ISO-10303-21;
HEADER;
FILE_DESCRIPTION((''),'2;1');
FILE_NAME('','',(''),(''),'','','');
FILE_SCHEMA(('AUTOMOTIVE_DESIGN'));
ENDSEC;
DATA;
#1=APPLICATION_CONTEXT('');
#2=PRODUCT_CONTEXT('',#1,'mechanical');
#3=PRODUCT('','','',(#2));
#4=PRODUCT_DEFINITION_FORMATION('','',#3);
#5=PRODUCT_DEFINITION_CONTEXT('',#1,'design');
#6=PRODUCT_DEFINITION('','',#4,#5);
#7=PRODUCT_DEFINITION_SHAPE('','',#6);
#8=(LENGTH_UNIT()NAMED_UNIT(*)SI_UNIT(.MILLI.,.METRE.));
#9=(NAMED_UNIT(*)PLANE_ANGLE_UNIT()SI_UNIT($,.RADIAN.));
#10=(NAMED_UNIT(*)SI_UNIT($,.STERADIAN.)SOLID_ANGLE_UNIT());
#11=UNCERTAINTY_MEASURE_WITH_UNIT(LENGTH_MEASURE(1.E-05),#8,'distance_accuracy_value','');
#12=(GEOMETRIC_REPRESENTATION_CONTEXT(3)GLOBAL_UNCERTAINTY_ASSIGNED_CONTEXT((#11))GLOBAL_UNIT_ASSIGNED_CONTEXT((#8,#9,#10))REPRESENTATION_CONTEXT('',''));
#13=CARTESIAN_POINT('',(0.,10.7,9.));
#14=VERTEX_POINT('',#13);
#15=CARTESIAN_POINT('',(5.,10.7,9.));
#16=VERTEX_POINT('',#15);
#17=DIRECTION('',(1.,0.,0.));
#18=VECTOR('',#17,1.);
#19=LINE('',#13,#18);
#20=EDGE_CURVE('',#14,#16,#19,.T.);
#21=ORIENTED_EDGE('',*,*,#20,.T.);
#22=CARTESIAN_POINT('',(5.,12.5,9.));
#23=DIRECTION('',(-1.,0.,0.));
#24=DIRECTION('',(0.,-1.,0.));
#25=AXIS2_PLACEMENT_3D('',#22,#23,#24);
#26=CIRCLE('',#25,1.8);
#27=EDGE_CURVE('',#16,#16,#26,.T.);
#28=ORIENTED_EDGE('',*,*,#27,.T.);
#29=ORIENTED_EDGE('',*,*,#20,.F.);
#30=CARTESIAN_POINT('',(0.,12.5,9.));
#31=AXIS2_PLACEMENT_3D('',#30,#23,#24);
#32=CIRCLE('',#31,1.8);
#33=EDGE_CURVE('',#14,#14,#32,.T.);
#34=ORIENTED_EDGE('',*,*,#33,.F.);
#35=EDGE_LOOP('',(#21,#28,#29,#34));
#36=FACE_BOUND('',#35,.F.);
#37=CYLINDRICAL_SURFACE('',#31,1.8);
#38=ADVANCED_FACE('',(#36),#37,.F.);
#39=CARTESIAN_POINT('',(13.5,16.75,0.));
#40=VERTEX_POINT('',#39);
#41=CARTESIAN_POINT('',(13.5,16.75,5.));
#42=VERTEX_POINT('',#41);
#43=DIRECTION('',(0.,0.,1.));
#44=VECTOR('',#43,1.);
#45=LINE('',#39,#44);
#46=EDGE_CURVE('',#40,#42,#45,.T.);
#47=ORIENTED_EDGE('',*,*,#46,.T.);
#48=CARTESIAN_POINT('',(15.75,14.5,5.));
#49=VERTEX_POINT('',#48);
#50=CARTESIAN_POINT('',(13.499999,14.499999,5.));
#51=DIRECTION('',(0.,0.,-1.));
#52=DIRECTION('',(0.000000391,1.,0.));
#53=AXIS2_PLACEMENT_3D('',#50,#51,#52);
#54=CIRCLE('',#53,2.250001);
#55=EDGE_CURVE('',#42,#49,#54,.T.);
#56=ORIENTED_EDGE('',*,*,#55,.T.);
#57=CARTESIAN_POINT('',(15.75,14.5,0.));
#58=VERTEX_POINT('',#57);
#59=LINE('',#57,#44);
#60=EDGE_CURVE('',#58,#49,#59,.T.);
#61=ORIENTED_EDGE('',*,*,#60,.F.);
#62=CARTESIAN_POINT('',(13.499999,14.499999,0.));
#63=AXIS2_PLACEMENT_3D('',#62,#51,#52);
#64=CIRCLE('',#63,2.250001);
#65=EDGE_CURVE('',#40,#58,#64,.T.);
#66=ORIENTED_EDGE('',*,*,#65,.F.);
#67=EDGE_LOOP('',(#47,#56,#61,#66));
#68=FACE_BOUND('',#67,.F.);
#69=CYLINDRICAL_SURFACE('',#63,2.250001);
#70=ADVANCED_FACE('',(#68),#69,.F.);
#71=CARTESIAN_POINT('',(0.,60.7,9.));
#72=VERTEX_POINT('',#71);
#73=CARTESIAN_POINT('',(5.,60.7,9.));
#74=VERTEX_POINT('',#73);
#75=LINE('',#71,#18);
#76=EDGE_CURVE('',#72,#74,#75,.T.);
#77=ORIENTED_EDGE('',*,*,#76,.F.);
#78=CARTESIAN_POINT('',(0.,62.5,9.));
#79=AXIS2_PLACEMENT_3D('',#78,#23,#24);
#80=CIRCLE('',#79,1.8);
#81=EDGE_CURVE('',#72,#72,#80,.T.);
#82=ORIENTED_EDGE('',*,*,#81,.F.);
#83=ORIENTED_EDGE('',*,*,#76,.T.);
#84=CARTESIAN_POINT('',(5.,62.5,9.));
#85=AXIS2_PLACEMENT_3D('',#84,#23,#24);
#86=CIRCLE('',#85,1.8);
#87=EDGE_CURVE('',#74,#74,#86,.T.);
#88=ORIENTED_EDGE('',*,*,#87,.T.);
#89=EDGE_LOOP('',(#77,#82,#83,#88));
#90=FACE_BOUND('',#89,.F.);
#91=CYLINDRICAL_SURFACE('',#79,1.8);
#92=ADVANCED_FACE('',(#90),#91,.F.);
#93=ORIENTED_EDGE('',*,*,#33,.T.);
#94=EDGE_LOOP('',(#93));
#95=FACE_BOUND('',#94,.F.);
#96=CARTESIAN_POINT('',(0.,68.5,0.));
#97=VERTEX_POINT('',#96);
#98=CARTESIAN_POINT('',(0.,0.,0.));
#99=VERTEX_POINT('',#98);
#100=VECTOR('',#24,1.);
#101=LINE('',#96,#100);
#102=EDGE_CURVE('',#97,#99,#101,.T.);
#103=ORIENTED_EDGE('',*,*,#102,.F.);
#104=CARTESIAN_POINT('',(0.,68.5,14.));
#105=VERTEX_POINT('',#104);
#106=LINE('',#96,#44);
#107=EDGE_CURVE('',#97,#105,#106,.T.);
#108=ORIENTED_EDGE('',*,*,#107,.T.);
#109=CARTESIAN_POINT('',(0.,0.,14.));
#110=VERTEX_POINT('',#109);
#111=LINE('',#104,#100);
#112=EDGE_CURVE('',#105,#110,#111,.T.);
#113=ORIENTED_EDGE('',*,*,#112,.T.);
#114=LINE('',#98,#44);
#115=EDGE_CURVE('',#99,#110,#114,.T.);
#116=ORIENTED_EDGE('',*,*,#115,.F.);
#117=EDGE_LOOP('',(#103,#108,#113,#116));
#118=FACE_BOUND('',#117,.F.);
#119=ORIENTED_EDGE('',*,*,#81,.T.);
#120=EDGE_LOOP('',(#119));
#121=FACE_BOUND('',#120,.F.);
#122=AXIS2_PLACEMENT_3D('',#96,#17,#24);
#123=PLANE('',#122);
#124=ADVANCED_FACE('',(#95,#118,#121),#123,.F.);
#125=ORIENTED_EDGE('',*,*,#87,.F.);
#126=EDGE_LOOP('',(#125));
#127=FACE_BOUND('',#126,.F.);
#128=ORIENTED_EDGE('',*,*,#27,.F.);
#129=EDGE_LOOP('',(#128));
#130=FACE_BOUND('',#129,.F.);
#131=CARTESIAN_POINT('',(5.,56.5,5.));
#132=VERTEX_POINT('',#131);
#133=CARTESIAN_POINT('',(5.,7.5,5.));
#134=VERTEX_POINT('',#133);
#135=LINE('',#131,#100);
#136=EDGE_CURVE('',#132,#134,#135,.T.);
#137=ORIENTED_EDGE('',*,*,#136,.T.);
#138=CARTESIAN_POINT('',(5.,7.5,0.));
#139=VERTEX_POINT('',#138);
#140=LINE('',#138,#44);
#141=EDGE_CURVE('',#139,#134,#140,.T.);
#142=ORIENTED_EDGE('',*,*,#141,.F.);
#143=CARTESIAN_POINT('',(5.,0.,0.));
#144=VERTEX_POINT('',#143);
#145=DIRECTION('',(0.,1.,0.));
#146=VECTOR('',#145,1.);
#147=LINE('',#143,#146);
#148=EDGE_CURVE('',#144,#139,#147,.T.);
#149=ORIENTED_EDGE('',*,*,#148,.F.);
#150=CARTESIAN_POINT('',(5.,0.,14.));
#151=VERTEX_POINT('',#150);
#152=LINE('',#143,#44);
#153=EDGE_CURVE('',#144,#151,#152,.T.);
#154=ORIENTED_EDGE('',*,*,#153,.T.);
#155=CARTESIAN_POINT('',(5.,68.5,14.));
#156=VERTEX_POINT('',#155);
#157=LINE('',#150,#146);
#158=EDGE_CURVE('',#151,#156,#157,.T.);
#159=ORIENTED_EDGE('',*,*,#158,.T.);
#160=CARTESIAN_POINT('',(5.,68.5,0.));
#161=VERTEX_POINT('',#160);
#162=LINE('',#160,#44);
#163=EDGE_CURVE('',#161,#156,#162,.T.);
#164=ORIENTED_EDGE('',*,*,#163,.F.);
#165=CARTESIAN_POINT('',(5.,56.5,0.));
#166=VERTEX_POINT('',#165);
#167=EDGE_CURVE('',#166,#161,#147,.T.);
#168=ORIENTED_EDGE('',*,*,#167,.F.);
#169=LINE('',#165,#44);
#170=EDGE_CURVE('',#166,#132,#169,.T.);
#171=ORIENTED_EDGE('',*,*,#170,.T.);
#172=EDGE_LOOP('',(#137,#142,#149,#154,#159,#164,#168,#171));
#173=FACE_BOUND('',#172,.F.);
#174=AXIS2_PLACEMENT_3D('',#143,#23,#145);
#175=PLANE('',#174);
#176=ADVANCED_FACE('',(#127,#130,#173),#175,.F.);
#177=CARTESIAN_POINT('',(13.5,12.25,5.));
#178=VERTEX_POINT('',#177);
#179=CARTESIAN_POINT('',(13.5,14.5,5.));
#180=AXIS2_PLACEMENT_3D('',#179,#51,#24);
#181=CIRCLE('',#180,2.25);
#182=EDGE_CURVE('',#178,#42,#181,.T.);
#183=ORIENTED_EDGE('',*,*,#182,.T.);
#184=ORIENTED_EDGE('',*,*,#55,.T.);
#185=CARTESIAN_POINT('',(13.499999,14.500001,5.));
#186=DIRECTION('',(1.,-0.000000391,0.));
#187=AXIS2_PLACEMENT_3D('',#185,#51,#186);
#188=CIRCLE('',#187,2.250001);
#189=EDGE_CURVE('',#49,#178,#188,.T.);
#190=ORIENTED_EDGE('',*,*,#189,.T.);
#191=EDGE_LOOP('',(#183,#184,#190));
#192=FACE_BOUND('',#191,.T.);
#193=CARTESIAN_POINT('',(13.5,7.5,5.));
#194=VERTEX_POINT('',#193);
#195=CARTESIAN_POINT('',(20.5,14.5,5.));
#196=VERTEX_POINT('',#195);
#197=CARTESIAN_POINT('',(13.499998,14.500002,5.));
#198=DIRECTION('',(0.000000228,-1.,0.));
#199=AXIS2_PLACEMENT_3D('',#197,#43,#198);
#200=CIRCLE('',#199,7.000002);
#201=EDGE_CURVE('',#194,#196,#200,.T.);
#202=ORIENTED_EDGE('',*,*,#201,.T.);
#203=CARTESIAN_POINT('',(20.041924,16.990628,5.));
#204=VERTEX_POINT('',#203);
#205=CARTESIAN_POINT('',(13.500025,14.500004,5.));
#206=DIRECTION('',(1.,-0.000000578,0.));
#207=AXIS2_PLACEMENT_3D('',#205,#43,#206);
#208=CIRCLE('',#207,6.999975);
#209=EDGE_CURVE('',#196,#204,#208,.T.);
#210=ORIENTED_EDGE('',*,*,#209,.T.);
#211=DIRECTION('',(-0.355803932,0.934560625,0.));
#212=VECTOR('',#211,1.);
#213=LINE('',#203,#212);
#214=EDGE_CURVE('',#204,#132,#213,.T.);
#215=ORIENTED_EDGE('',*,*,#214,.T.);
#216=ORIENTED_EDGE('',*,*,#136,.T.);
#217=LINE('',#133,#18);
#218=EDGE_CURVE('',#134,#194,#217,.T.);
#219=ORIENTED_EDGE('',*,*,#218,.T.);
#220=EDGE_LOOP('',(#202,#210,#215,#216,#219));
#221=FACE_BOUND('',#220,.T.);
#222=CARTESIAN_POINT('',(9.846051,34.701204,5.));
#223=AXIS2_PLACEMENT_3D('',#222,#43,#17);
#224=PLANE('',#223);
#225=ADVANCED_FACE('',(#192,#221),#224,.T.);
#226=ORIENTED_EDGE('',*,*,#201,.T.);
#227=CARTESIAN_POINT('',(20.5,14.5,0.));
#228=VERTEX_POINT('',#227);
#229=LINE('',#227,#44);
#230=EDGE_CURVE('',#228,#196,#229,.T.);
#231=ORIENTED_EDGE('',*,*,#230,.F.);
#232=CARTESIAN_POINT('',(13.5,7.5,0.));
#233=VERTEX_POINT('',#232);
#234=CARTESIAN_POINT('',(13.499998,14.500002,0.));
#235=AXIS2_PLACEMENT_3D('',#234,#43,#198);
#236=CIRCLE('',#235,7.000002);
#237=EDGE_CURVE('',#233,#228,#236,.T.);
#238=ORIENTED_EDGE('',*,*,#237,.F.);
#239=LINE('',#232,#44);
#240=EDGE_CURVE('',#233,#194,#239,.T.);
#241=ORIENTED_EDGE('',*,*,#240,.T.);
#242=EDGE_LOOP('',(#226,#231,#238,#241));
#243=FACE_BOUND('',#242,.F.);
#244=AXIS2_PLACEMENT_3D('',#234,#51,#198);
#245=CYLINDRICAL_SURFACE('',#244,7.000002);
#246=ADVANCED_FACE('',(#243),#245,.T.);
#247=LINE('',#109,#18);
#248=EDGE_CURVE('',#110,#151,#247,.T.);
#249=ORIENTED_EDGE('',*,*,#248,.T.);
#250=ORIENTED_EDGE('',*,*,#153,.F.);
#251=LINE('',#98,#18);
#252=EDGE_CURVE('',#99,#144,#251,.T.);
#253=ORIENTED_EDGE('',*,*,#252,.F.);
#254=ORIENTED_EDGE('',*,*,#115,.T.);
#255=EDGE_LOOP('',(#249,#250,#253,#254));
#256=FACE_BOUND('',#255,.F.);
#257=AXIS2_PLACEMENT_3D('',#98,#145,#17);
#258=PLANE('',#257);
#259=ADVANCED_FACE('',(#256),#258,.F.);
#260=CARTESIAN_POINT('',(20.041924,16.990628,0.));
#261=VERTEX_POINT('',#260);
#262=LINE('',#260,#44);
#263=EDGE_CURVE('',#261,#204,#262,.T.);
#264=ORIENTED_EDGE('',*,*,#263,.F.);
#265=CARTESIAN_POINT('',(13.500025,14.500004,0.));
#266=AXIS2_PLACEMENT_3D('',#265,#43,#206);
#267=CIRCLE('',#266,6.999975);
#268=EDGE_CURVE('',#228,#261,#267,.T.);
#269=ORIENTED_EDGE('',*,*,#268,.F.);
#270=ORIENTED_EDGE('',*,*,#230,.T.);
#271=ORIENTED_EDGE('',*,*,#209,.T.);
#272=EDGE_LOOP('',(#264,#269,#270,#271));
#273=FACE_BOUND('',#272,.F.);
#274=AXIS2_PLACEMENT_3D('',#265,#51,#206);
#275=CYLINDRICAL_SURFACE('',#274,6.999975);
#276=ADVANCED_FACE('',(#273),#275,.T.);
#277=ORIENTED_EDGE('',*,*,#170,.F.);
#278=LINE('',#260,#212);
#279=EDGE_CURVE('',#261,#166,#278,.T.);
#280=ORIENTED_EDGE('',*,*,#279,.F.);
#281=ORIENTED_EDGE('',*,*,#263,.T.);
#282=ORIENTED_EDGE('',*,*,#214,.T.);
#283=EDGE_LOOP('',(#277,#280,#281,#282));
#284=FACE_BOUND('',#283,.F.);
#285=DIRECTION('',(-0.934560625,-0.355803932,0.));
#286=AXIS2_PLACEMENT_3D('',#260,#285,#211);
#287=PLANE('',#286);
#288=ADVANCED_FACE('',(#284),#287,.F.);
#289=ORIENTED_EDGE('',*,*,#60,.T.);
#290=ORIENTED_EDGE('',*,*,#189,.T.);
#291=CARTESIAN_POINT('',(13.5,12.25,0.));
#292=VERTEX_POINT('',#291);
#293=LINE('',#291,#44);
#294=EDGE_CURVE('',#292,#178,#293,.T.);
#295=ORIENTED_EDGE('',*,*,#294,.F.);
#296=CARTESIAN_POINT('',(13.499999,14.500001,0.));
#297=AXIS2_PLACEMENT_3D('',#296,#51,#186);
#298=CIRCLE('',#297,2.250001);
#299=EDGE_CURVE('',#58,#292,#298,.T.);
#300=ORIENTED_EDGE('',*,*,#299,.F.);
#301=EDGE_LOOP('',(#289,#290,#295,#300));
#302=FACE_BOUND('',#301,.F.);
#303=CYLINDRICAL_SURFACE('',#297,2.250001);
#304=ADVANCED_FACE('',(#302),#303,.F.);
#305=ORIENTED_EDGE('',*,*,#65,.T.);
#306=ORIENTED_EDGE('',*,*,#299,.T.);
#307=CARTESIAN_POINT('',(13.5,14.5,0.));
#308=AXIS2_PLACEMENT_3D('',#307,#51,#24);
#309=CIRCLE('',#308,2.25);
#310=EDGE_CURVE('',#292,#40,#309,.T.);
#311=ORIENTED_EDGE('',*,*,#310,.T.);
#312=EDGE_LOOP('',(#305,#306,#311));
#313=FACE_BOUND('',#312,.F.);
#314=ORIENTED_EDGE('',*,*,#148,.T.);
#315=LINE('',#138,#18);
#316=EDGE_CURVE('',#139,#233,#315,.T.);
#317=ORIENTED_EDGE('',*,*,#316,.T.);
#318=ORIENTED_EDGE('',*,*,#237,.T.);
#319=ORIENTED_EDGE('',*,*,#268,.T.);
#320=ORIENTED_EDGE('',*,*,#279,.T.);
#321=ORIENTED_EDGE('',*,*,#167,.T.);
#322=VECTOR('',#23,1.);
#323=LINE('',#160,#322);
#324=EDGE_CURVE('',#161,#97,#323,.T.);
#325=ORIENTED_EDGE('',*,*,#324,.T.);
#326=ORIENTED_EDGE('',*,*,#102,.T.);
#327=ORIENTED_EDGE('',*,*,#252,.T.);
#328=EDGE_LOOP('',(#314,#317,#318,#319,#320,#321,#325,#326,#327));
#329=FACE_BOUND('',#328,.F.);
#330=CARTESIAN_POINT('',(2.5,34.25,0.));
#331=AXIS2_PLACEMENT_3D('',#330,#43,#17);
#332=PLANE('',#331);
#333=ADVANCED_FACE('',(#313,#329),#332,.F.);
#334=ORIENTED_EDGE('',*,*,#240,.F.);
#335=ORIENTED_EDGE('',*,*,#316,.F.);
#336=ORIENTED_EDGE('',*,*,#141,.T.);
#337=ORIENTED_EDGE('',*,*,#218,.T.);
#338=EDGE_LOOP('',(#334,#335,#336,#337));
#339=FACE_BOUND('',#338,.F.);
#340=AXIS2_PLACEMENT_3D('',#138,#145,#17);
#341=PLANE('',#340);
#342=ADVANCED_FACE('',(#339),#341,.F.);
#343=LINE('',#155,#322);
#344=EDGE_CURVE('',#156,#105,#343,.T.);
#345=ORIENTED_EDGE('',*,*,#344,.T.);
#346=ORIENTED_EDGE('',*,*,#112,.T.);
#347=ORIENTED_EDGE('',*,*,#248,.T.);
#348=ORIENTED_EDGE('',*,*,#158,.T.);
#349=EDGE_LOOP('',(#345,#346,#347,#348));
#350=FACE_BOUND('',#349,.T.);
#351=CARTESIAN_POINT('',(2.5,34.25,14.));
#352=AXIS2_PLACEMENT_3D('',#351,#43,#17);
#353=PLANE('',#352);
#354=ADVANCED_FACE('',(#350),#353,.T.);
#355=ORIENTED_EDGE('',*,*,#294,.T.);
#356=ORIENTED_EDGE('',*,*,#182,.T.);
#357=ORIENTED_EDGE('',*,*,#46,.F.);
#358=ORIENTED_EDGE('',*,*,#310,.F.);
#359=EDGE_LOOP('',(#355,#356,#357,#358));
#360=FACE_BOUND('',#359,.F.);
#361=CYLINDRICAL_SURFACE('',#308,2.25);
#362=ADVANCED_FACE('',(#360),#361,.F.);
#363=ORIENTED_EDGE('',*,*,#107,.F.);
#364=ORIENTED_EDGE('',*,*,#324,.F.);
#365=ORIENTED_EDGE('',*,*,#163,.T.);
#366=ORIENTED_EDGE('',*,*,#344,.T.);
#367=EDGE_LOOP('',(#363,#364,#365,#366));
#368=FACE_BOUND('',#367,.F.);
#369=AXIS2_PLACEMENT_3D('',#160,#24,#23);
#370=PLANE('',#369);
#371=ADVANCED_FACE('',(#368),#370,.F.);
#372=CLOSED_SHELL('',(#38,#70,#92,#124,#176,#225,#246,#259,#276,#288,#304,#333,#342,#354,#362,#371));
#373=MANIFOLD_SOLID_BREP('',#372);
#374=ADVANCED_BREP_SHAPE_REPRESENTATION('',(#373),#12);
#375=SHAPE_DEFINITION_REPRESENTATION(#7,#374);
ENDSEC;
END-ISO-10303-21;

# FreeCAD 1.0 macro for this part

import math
import FreeCAD as App
import Part
import Sketcher
from FreeCAD import Vector
Q = App.Units.Quantity

doc = App.newDocument("Part")
body = doc.addObject("PartDesign::Body", "Body")

# Sketch on XY plane
sketch1 = body.newObject("Sketcher::SketchObject", "Sketch")
sketch1.AttachmentSupport = (doc.getObject("XY_Plane"), [""])
sketch1.MapMode = "FlatFace"
sketch1.addGeometry([
    Part.LineSegment(Vector(0, 68, 0), Vector(0, 0, 0)),
    Part.LineSegment(Vector(0, 0, 0), Vector(5, 0, 0)),
    Part.LineSegment(Vector(5, 0, 0), Vector(5, 68, 0)),
    Part.LineSegment(Vector(5, 68, 0), Vector(0, 68, 0)),
], False)
sketch1.addConstraint([
    Sketcher.Constraint("Coincident", 0, 2, 1, 1),
    Sketcher.Constraint("Coincident", 1, 2, 2, 1),
    Sketcher.Constraint("Coincident", 2, 2, 3, 1),
    Sketcher.Constraint("Coincident", 3, 2, 0, 1),
    Sketcher.Constraint("Vertical", 0),
    Sketcher.Constraint("Horizontal", 1),
    Sketcher.Constraint("Vertical", 2),
    Sketcher.Constraint("Horizontal", 3),
    Sketcher.Constraint("Coincident", 0, 2, -1, 1),
    Sketcher.Constraint("DistanceX", 1, 1, 1, 2, Q("5 mm")),
    Sketcher.Constraint("DistanceY", 0, 2, 0, 1, Q("68.5 mm")),
])
pad1 = body.newObject("PartDesign::Pad", "Pad")
pad1.Profile = sketch1
pad1.Length = 14

# Sketch on YZ plane
sketch2 = body.newObject("Sketcher::SketchObject", "Sketch001")
sketch2.AttachmentSupport = (doc.getObject("YZ_Plane"), [""])
sketch2.MapMode = "FlatFace"
sketch2.addGeometry([
    Part.Circle(Vector(62.5, 9, 0), Vector(0, 0, 1), 1.8),
    Part.Circle(Vector(12.5, 9, 0), Vector(0, 0, 1), 1.8),
], False)
sketch2.addConstraint([
    Sketcher.Constraint("Equal", 0, 1),
    Sketcher.Constraint("Horizontal", 0, 3, 1, 3),
    Sketcher.Constraint("Diameter", 0, Q("3.6 mm")),
    Sketcher.Constraint("DistanceY", -1, 1, 0, 3, Q("9 mm")),
    Sketcher.Constraint("DistanceX", 1, 3, 0, 3, Q("50 mm")),
    Sketcher.Constraint("DistanceX", -1, 1, 0, 3, Q("62.5 mm")),
])
pocket1 = body.newObject("PartDesign::Pocket", "Pocket")
pocket1.Profile = sketch2
pocket1.Length = 25
pocket1.Reversed = True

# Sketch on XY plane
sketch3 = body.newObject("Sketcher::SketchObject", "Sketch002")
sketch3.AttachmentSupport = (doc.getObject("XY_Plane"), [""])
sketch3.MapMode = "FlatFace"
sketch3.addGeometry([
    Part.LineSegment(Vector(5, 7.5, 0), Vector(13.5, 7.5, 0)),  # 0
    Part.ArcOfCircle(Part.Circle(Vector(13.5, 14.5, 0), Vector(0, 0, 1), 7), math.radians(-90), math.radians(0)),  # 1
    Part.ArcOfCircle(Part.Circle(Vector(13.5, 14.5, 0), Vector(0, 0, 1), 7), math.radians(0), math.radians(21)),  # 2
    Part.LineSegment(Vector(20, 17, 0), Vector(5, 56.5, 0)),  # 3
    Part.LineSegment(Vector(5, 56.5, 0), Vector(5, 7.5, 0)),  # 4
    Part.ArcOfCircle(Part.Circle(Vector(13.5, 14.5, 0), Vector(0, 0, 1), 2.3), math.radians(-90), math.radians(0)),  # 5
    Part.ArcOfCircle(Part.Circle(Vector(13.5, 14.5, 0), Vector(0, 0, 1), 2.2), math.radians(90), math.radians(270)),  # 6
    Part.ArcOfCircle(Part.Circle(Vector(13.5, 14.5, 0), Vector(0, 0, 1), 2.3), math.radians(0), math.radians(90)),  # 7
], False)
sketch3.addConstraint([
    Sketcher.Constraint("Tangent", 0, 2, 1, 1),
    Sketcher.Constraint("Tangent", 1, 2, 2, 1),
    Sketcher.Constraint("Tangent", 2, 2, 3, 1),
    Sketcher.Constraint("Coincident", 3, 2, 4, 1),
    Sketcher.Constraint("Coincident", 4, 2, 0, 1),
    Sketcher.Constraint("Tangent", 5, 1, 6, 2),
    Sketcher.Constraint("Tangent", 6, 1, 7, 2),
    Sketcher.Constraint("Tangent", 7, 1, 5, 2),
    Sketcher.Constraint("Horizontal", 0),
    Sketcher.Constraint("Vertical", 4),
    Sketcher.Constraint("Coincident", 5, 3, 1, 3),
    Sketcher.Constraint("Horizontal", 7, 3, 1, 2),
    Sketcher.Constraint("Horizontal", 1, 2, 7, 1),
    Sketcher.Constraint("Vertical", 0, 2, 5, 1),
    Sketcher.Constraint("Vertical", 5, 1, 6, 1),
    Sketcher.Constraint("Radius", 1, Q("7.000002 mm")),
    Sketcher.Constraint("DistanceY", 4, 2, 4, 1, Q("49 mm")),
    Sketcher.Constraint("Radius", 5, Q("2.250001 mm")),
    Sketcher.Constraint("DistanceX", 0, 1, 0, 2, Q("8.5 mm")),
    Sketcher.Constraint("DistanceX", -1, 1, 3, 2, Q("5 mm")),
    Sketcher.Constraint("DistanceY", -1, 1, 1, 3, Q("14.500002 mm")),
    Sketcher.Constraint("Radius", 2, Q("6.999975 mm")),
])
pad2 = body.newObject("PartDesign::Pad", "Pad001")
pad2.Profile = sketch3
pad2.Length = 5

doc.recompute()
